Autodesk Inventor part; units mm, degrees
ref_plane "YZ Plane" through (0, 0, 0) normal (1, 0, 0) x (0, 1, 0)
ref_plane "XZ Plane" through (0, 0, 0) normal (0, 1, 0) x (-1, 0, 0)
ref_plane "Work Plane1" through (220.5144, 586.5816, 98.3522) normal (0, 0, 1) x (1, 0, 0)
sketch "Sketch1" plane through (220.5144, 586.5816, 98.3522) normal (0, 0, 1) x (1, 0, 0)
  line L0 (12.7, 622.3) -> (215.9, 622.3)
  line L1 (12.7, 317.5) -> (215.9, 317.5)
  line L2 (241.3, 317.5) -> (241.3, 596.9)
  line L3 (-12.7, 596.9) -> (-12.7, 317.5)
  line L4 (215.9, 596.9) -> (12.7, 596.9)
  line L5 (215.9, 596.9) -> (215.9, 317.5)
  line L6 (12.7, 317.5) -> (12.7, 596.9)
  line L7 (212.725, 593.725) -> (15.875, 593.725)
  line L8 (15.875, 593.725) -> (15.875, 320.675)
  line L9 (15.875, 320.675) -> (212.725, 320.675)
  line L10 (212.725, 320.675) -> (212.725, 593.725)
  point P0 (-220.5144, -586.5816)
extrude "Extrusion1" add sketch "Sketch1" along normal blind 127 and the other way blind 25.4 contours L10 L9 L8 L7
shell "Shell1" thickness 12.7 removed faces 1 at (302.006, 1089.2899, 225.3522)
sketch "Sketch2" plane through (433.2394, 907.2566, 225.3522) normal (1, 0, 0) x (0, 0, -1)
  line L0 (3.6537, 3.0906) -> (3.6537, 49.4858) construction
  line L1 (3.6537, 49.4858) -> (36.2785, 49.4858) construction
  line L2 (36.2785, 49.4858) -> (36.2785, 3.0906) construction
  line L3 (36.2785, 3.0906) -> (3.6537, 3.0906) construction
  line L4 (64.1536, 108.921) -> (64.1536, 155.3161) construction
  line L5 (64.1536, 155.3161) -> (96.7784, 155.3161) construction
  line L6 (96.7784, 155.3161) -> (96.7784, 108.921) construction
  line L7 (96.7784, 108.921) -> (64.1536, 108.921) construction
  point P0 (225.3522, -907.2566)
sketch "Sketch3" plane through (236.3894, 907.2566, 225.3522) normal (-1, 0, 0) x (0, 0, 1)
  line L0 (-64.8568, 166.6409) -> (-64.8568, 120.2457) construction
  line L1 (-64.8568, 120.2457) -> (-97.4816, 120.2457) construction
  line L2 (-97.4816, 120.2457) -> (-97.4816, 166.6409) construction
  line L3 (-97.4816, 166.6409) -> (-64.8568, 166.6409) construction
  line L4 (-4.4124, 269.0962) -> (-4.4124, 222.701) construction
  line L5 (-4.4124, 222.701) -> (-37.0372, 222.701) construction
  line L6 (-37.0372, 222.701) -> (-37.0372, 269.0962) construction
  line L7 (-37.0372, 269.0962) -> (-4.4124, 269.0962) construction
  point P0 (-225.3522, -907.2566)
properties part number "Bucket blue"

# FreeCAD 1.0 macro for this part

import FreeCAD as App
import Part
import Sketcher

V = App.Vector
Q = App.Units.Quantity


def faces_at(feature, points):
    """Names of the faces that lie closest to the given points."""
    faces = feature.Shape.Faces
    near = lambda p: min(range(len(faces)), key=lambda i: faces[i].distToShape(Part.Vertex(*p))[0])
    return sorted({f"Face{near(p) + 1}" for p in points})


def add_polygon(sketch, points):
    """Adds a closed chain of lines whose ends are joined by coincident constraints."""
    first, n = sketch.GeometryCount, len(points)
    for a, b in zip(points, points[1:] + points[:1]):
        sketch.addGeometry(Part.LineSegment(App.Vector(*a, 0), App.Vector(*b, 0)), False)
    for i in range(n):
        sketch.addConstraint(Sketcher.Constraint("Coincident", first + i, 2, first + (i + 1) % n, 1))

doc = App.newDocument("Part")
params = doc.addObject("Spreadsheet::Sheet", "Params")
for row, (alias, value) in enumerate([
    ("sketch1_width", "7.75 in"),
    ("sketch1_height", "10.75 in"),
    ("pad1_length", "5 in"),
    ("pad1_length2", "1 in"),
    ("thickness_wall", "0.5 in"),
], start=1):
    params.set(f"A{row}", alias)
    params.set(f"B{row}", "=" + value)
    params.setAlias(f"B{row}", alias)

body = doc.addObject("PartDesign::Body", "Body")

sketch1 = body.newObject("Sketcher::SketchObject", "Sketch")
sketch1.AttachmentSupport = (doc.getObject("XY_Plane"), [""])
sketch1.MapMode = "FlatFace"
sketch1.AttachmentOffset = App.Placement(V(0, 0, 98.3522), App.Rotation())
add_polygon(sketch1, [(433.2394, 907.2566), (433.2394, 1180.3066), (236.3894, 1180.3066), (236.3894, 907.2566)])
sketch1.addConstraint(Sketcher.Constraint("Vertical", 0))
sketch1.addConstraint(Sketcher.Constraint("Horizontal", 1))
sketch1.addConstraint(Sketcher.Constraint("Vertical", 2))
sketch1.addConstraint(Sketcher.Constraint("Horizontal", 3))
sketch1.addConstraint(Sketcher.Constraint("DistanceX", 1, 2, 1, 1, Q("7.75 in")))
sketch1.addConstraint(Sketcher.Constraint("DistanceY", 0, 1, 0, 2, Q("10.75 in")))
sketch1.addConstraint(Sketcher.Constraint("DistanceX", -1, 1, 0, 2, Q("433.2394 mm")))
sketch1.addConstraint(Sketcher.Constraint("DistanceY", -1, 1, 0, 2, Q("1180.3066 mm")))
sketch1.setExpression("Constraints[8]", "Params.sketch1_width")
sketch1.setExpression("Constraints[9]", "Params.sketch1_height")
pad1 = body.newObject("PartDesign::Pad", "Pad")
pad1.Profile = sketch1
pad1.Type = "TwoLengths"
pad1.setExpression("Length", "Params.pad1_length")
pad1.setExpression("Length2", "Params.pad1_length2")
doc.recompute()

thickness = body.newObject("PartDesign::Thickness", "Thickness")
thickness.Base = (pad1, faces_at(pad1, [(302.006, 1089.29, 225.352)]))
thickness.setExpression("Value", "Params.thickness_wall")
thickness.Reversed = True
thickness.Join = "Intersection"

doc.recompute()
